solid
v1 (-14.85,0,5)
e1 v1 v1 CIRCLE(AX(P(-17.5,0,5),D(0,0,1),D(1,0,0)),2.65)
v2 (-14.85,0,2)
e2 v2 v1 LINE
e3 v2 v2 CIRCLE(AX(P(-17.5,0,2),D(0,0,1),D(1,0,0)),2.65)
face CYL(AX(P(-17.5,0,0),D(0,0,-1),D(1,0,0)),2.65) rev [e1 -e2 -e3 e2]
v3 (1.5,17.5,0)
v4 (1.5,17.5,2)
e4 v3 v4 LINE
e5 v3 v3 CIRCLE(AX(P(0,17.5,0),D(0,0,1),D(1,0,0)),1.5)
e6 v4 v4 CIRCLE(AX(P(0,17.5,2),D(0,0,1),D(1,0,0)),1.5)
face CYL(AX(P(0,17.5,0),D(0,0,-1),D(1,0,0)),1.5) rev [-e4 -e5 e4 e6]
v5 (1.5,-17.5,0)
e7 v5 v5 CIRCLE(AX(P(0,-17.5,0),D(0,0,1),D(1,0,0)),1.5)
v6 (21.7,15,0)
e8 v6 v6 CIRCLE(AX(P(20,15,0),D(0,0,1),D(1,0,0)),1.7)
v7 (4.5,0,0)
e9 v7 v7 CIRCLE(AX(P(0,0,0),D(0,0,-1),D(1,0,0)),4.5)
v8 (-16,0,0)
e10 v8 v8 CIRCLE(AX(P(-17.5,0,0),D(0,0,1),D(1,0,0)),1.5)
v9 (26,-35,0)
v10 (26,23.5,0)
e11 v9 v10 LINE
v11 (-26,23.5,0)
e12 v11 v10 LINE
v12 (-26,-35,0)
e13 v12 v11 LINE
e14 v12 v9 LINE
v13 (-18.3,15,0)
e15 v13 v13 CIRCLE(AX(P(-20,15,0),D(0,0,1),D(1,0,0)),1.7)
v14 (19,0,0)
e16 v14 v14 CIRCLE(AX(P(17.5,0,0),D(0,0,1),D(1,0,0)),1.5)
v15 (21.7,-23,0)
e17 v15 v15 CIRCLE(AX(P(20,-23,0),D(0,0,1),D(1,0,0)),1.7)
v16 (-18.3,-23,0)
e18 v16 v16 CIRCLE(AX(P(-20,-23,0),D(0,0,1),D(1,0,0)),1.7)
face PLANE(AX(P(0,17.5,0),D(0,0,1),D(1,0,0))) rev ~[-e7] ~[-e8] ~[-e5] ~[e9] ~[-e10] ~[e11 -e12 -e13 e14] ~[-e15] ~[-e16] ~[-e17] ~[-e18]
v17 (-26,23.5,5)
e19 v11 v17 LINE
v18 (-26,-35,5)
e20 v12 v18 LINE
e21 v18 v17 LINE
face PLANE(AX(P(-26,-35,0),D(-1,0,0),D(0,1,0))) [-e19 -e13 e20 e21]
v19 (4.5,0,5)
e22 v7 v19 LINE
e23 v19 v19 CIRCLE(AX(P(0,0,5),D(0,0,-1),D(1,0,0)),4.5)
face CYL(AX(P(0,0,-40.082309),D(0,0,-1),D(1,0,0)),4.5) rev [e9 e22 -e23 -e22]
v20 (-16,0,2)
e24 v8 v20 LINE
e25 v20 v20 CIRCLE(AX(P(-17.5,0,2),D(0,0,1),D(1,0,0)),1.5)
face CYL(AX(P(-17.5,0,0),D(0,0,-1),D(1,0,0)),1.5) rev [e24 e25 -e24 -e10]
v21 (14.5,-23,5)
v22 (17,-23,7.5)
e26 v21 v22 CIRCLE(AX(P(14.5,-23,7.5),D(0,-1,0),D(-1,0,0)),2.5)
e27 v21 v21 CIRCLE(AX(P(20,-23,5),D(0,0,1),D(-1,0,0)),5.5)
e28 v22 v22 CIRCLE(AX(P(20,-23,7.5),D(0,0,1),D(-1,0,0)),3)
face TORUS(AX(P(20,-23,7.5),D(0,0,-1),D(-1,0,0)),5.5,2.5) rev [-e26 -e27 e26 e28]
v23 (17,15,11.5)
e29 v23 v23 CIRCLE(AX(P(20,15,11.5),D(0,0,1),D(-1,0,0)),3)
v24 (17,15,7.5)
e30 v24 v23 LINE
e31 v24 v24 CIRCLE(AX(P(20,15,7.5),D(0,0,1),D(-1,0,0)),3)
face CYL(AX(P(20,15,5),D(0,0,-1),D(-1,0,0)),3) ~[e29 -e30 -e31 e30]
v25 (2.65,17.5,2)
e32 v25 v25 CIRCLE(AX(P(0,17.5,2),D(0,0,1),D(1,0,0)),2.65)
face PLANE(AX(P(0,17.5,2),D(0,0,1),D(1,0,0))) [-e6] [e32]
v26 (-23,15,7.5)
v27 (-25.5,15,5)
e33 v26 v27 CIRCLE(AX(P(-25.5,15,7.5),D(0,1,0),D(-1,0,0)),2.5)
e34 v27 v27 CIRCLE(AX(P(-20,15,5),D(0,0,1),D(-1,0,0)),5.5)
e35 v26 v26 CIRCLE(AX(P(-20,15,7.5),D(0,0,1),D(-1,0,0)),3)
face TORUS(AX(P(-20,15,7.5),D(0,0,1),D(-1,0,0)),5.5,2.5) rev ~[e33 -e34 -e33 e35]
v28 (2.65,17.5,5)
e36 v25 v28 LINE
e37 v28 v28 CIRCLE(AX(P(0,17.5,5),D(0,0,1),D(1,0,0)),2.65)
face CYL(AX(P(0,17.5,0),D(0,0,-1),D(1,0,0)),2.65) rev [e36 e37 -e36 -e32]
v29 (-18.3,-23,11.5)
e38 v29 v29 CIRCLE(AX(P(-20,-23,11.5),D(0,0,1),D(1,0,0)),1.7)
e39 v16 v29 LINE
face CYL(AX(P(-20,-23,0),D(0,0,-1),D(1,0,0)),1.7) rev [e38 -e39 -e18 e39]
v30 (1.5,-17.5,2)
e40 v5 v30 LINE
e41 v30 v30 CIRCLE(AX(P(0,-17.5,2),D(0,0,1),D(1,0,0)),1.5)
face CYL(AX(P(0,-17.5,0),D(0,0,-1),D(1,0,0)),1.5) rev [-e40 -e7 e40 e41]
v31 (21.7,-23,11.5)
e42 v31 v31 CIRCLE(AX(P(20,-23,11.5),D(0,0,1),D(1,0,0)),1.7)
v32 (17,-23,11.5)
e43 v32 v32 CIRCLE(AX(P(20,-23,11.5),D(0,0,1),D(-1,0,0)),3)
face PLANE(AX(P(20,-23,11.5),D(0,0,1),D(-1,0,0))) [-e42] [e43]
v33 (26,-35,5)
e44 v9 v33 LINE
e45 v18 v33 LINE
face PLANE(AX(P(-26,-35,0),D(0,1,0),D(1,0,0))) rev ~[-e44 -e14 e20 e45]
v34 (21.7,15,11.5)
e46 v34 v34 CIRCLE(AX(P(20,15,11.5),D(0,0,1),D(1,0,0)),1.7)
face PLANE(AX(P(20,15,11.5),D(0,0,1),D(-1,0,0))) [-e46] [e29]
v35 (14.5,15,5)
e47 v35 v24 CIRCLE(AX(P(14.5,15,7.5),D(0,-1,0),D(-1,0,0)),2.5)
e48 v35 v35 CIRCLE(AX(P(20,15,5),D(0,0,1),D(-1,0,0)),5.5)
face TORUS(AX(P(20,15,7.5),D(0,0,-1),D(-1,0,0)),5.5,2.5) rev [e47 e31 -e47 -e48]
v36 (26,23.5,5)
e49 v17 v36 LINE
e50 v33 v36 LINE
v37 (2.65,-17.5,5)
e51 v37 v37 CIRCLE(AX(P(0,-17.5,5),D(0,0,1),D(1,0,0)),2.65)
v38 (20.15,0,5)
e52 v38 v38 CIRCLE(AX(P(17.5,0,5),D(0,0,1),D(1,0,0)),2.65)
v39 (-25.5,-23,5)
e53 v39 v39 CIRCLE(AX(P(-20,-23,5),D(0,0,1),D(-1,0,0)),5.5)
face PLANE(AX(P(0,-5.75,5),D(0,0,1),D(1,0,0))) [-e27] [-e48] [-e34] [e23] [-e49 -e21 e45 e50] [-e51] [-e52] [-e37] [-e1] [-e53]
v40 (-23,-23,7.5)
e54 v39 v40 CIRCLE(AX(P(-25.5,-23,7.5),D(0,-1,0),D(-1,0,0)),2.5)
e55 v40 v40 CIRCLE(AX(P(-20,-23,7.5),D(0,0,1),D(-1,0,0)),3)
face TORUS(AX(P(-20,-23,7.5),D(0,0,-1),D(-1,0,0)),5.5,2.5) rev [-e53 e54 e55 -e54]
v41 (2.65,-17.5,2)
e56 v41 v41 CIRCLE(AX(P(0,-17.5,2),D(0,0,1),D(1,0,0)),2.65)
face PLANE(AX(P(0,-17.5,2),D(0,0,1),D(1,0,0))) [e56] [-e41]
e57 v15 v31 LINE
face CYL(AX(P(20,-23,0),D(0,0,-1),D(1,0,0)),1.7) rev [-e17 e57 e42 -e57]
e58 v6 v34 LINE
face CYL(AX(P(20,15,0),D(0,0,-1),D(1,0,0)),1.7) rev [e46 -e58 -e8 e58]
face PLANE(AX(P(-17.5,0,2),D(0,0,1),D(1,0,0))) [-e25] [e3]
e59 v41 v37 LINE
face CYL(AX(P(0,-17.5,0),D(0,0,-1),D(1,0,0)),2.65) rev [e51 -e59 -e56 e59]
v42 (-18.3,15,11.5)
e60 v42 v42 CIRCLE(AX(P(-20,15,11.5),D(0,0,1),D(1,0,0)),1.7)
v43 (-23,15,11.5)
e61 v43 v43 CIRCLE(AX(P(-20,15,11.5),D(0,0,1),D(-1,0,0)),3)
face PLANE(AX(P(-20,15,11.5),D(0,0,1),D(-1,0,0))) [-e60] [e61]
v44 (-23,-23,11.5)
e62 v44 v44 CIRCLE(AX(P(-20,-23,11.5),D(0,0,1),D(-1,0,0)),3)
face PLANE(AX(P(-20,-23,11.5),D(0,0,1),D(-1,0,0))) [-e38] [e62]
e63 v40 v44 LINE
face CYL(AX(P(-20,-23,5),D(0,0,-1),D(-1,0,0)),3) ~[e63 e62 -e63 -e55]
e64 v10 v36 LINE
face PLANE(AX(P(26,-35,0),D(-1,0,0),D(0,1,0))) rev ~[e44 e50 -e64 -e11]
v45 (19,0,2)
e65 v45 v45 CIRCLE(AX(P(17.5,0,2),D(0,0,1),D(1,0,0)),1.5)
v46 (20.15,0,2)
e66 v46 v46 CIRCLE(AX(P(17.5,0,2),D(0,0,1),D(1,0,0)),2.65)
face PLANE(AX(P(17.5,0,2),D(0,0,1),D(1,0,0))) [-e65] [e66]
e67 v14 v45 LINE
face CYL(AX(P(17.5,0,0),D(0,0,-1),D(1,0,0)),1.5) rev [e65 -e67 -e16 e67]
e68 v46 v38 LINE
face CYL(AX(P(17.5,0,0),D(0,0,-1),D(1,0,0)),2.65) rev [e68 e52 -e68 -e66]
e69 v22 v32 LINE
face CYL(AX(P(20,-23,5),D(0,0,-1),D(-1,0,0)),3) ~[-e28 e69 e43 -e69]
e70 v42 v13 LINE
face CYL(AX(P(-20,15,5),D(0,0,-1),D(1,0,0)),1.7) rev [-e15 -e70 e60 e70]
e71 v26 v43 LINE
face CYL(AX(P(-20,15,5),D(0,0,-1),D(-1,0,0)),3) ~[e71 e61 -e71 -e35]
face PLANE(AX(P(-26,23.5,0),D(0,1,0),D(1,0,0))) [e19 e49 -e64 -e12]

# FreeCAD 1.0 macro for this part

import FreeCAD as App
import Part
import Sketcher
Q = App.Units.Quantity


def edges_at(feature, points):
    """Names of the edges that pass closest to the given points."""
    edges = feature.Shape.Edges
    near = lambda p: min(range(len(edges)), key=lambda i: edges[i].distToShape(Part.Vertex(*p))[0])
    return sorted({f"Edge{near(p) + 1}" for p in points})


def add_polygon(sketch, points):
    """Adds a closed chain of lines whose ends are joined by coincident constraints."""
    first, n = sketch.GeometryCount, len(points)
    for a, b in zip(points, points[1:] + points[:1]):
        sketch.addGeometry(Part.LineSegment(App.Vector(*a, 0), App.Vector(*b, 0)), False)
    for i in range(n):
        sketch.addConstraint(Sketcher.Constraint("Coincident", first + i, 2, first + (i + 1) % n, 1))

doc = App.newDocument("Part")
params = doc.addObject("Spreadsheet::Sheet", "Params")
for row, (alias, value) in enumerate([
    ("sketch1_diameter", "3.4 mm"),
    ("sketch1_diameter2", "5.3 mm"),
    ("sketch1_width", "52 mm"),
    ("sketch1_height", "58.5 mm"),
    ("pad1_length", "5 mm"),
    ("sketch2_diameter", "3 mm"),
    ("sketch2_diameter2", "5.3 mm"),
    ("pad2_length", "2 mm"),
    ("sketch3_diameter", "6 mm"),
    ("sketch3_diameter2", "3.4 mm"),
    ("pad3_length", "6.5 mm"),
    ("sketch4_diameter", "9 mm"),
    ("fillet_radius", "2.5 mm"),
], start=1):
    params.set(f"A{row}", alias)
    params.set(f"B{row}", "=" + value)
    params.setAlias(f"B{row}", alias)

body = doc.addObject("PartDesign::Body", "Body")

sketch1 = doc.addObject("Sketcher::SketchObject", "Sketch")
body.addObject(sketch1)
sketch1.AttachmentSupport = (doc.XY_Plane, [""])
sketch1.MapMode = "FlatFace"
add_polygon(sketch1, [(-26, 23.5), (-26, -35), (26, -35), (26, 23.5)])
sketch1.addGeometry(Part.Circle(App.Vector(-20, -23, 0), App.Vector(0, 0, 1), 1.7), False)
sketch1.addGeometry(Part.Circle(App.Vector(0, -17.5, 0), App.Vector(0, 0, 1), 2.6), False)
sketch1.addGeometry(Part.Circle(App.Vector(20, -23, 0), App.Vector(0, 0, 1), 1.7), False)
sketch1.addGeometry(Part.Circle(App.Vector(-17.5, 0, 0), App.Vector(0, 0, 1), 2.6), False)
sketch1.addGeometry(Part.Circle(App.Vector(-20, 15, 0), App.Vector(0, 0, 1), 1.7), False)
sketch1.addGeometry(Part.Circle(App.Vector(17.5, 0, 0), App.Vector(0, 0, 1), 2.6), False)
sketch1.addGeometry(Part.Circle(App.Vector(0, 17.5, 0), App.Vector(0, 0, 1), 2.6), False)
sketch1.addGeometry(Part.Circle(App.Vector(20, 15, 0), App.Vector(0, 0, 1), 1.7), False)
sketch1.addConstraint(Sketcher.Constraint("Vertical", 0))
sketch1.addConstraint(Sketcher.Constraint("Horizontal", 1))
sketch1.addConstraint(Sketcher.Constraint("Vertical", 2))
sketch1.addConstraint(Sketcher.Constraint("Horizontal", 3))
sketch1.addConstraint(Sketcher.Constraint("Equal", 4, 6))
sketch1.addConstraint(Sketcher.Constraint("Equal", 5, 7))
sketch1.addConstraint(Sketcher.Constraint("Equal", 6, 8))
sketch1.addConstraint(Sketcher.Constraint("Equal", 7, 9))
sketch1.addConstraint(Sketcher.Constraint("Equal", 9, 10))
sketch1.addConstraint(Sketcher.Constraint("Equal", 8, 11))
sketch1.addConstraint(Sketcher.Constraint("Symmetric", 7, 3, 9, 3, -1, 1))
sketch1.addConstraint(Sketcher.Constraint("Symmetric", 5, 3, 10, 3, -1, 1))
sketch1.addConstraint(Sketcher.Constraint("Symmetric", 4, 3, 6, 3, -2))
sketch1.addConstraint(Sketcher.Constraint("Symmetric", 8, 3, 11, 3, -2))
sketch1.addConstraint(Sketcher.Constraint("PointOnObject", 5, 3, -2))
sketch1.addConstraint(Sketcher.Constraint("PointOnObject", 7, 3, -1))
sketch1.addConstraint(Sketcher.Constraint("Vertical", 4, 3, 8, 3))
sketch1.addConstraint(Sketcher.Constraint("Diameter", 4, Q("3.4 mm")))
sketch1.addConstraint(Sketcher.Constraint("Diameter", 5, Q("5.3 mm")))
sketch1.addConstraint(Sketcher.Constraint("DistanceX", 1, 1, 1, 2, Q("52 mm")))
sketch1.addConstraint(Sketcher.Constraint("DistanceY", 0, 2, 0, 1, Q("58.5 mm")))
sketch1.addConstraint(Sketcher.Constraint("DistanceX", 4, 3, -1, 1, Q("20 mm")))
sketch1.addConstraint(Sketcher.Constraint("DistanceY", 4, 3, -1, 1, Q("23 mm")))
sketch1.addConstraint(Sketcher.Constraint("DistanceY", -1, 1, 8, 3, Q("15 mm")))
sketch1.addConstraint(Sketcher.Constraint("DistanceX", 0, 2, -1, 1, Q("26 mm")))
sketch1.addConstraint(Sketcher.Constraint("DistanceY", 0, 2, -1, 1, Q("35 mm")))
sketch1.addConstraint(Sketcher.Constraint("DistanceX", 7, 3, 9, 3, Q("35 mm")))
sketch1.addConstraint(Sketcher.Constraint("DistanceY", 5, 3, 10, 3, Q("35 mm")))
sketch1.setExpression("Constraints[21]", "Params.sketch1_diameter")
sketch1.setExpression("Constraints[22]", "Params.sketch1_diameter2")
sketch1.setExpression("Constraints[23]", "Params.sketch1_width")
sketch1.setExpression("Constraints[24]", "Params.sketch1_height")
pad1 = doc.addObject("PartDesign::Pad", "Pad")
body.addObject(pad1)
pad1.Profile = sketch1
pad1.setExpression("Length", "Params.pad1_length")

sketch2 = doc.addObject("Sketcher::SketchObject", "Sketch001")
body.addObject(sketch2)
sketch2.AttachmentSupport = (doc.XY_Plane, [""])
sketch2.MapMode = "FlatFace"
sketch2.addGeometry(Part.Circle(App.Vector(0, 17.5, 0), App.Vector(0, 0, 1), 2.6), False)
sketch2.addGeometry(Part.Circle(App.Vector(0, 17.5, 0), App.Vector(0, 0, 1), 1.5), False)
sketch2.addGeometry(Part.Circle(App.Vector(-17.5, 0, 0), App.Vector(0, 0, 1), 2.6), False)
sketch2.addGeometry(Part.Circle(App.Vector(-17.5, 0, 0), App.Vector(0, 0, 1), 1.5), False)
sketch2.addGeometry(Part.Circle(App.Vector(17.5, 0, 0), App.Vector(0, 0, 1), 2.6), False)
sketch2.addGeometry(Part.Circle(App.Vector(17.5, 0, 0), App.Vector(0, 0, 1), 1.5), False)
sketch2.addGeometry(Part.Circle(App.Vector(0, -17.5, 0), App.Vector(0, 0, 1), 2.6), False)
sketch2.addGeometry(Part.Circle(App.Vector(0, -17.5, 0), App.Vector(0, 0, 1), 1.5), False)
sketch2.addConstraint(Sketcher.Constraint("Coincident", 1, 3, 0, 3))
sketch2.addConstraint(Sketcher.Constraint("Coincident", 3, 3, 2, 3))
sketch2.addConstraint(Sketcher.Constraint("Coincident", 5, 3, 4, 3))
sketch2.addConstraint(Sketcher.Constraint("Coincident", 7, 3, 6, 3))
sketch2.addConstraint(Sketcher.Constraint("Equal", 0, 2))
sketch2.addConstraint(Sketcher.Constraint("Equal", 1, 3))
sketch2.addConstraint(Sketcher.Constraint("Equal", 2, 4))
sketch2.addConstraint(Sketcher.Constraint("Equal", 3, 5))
sketch2.addConstraint(Sketcher.Constraint("Equal", 4, 6))
sketch2.addConstraint(Sketcher.Constraint("Equal", 5, 7))
sketch2.addConstraint(Sketcher.Constraint("Symmetric", 2, 3, 4, 3, -1, 1))
sketch2.addConstraint(Sketcher.Constraint("Symmetric", 0, 3, 6, 3, -1, 1))
sketch2.addConstraint(Sketcher.Constraint("PointOnObject", 0, 3, -2))
sketch2.addConstraint(Sketcher.Constraint("PointOnObject", 2, 3, -1))
sketch2.addConstraint(Sketcher.Constraint("Diameter", 1, Q("3 mm")))
sketch2.addConstraint(Sketcher.Constraint("Diameter", 0, Q("5.3 mm")))
sketch2.addConstraint(Sketcher.Constraint("DistanceX", 2, 3, 4, 3, Q("35 mm")))
sketch2.addConstraint(Sketcher.Constraint("DistanceY", 6, 3, 0, 3, Q("35 mm")))
sketch2.setExpression("Constraints[14]", "Params.sketch2_diameter")
sketch2.setExpression("Constraints[15]", "Params.sketch2_diameter2")
pad2 = doc.addObject("PartDesign::Pad", "Pad001")
body.addObject(pad2)
pad2.Profile = sketch2
pad2.setExpression("Length", "Params.pad2_length")

sketch3 = doc.addObject("Sketcher::SketchObject", "Sketch002")
body.addObject(sketch3)
sketch3.AttachmentSupport = (doc.XY_Plane, [""])
sketch3.MapMode = "FlatFace"
sketch3.AttachmentOffset = App.Placement(App.Vector(0, 0, 5), App.Rotation())
sketch3.addGeometry(Part.Circle(App.Vector(-20, 15, 0), App.Vector(0, 0, 1), 3), False)
sketch3.addGeometry(Part.Circle(App.Vector(-20, 15, 0), App.Vector(0, 0, 1), 1.7), False)
sketch3.addGeometry(Part.Circle(App.Vector(20, 15, 0), App.Vector(0, 0, 1), 3), False)
sketch3.addGeometry(Part.Circle(App.Vector(20, 15, 0), App.Vector(0, 0, 1), 1.7), False)
sketch3.addGeometry(Part.Circle(App.Vector(-20, -23, 0), App.Vector(0, 0, 1), 3), False)
sketch3.addGeometry(Part.Circle(App.Vector(-20, -23, 0), App.Vector(0, 0, 1), 1.7), False)
sketch3.addGeometry(Part.Circle(App.Vector(20, -23, 0), App.Vector(0, 0, 1), 3), False)
sketch3.addGeometry(Part.Circle(App.Vector(20, -23, 0), App.Vector(0, 0, 1), 1.7), False)
sketch3.addConstraint(Sketcher.Constraint("Coincident", 1, 3, 0, 3))
sketch3.addConstraint(Sketcher.Constraint("Coincident", 3, 3, 2, 3))
sketch3.addConstraint(Sketcher.Constraint("Coincident", 5, 3, 4, 3))
sketch3.addConstraint(Sketcher.Constraint("Coincident", 7, 3, 6, 3))
sketch3.addConstraint(Sketcher.Constraint("Equal", 0, 2))
sketch3.addConstraint(Sketcher.Constraint("Equal", 1, 3))
sketch3.addConstraint(Sketcher.Constraint("Equal", 2, 4))
sketch3.addConstraint(Sketcher.Constraint("Equal", 3, 5))
sketch3.addConstraint(Sketcher.Constraint("Equal", 4, 6))
sketch3.addConstraint(Sketcher.Constraint("Equal", 5, 7))
sketch3.addConstraint(Sketcher.Constraint("Symmetric", 0, 3, 2, 3, -2))
sketch3.addConstraint(Sketcher.Constraint("Symmetric", 4, 3, 6, 3, -2))
sketch3.addConstraint(Sketcher.Constraint("Vertical", 1, 3, 4, 3))
sketch3.addConstraint(Sketcher.Constraint("Diameter", 0, Q("6 mm")))
sketch3.addConstraint(Sketcher.Constraint("Diameter", 1, Q("3.4 mm")))
sketch3.addConstraint(Sketcher.Constraint("DistanceX", 0, 3, -1, 1, Q("20 mm")))
sketch3.addConstraint(Sketcher.Constraint("DistanceY", -1, 1, 0, 3, Q("15 mm")))
sketch3.addConstraint(Sketcher.Constraint("DistanceY", 4, 3, -1, 1, Q("23 mm")))
sketch3.setExpression("Constraints[13]", "Params.sketch3_diameter")
sketch3.setExpression("Constraints[14]", "Params.sketch3_diameter2")
pad3 = doc.addObject("PartDesign::Pad", "Pad002")
body.addObject(pad3)
pad3.Profile = sketch3
pad3.setExpression("Length", "Params.pad3_length")

sketch4 = doc.addObject("Sketcher::SketchObject", "Sketch003")
body.addObject(sketch4)
sketch4.AttachmentSupport = (doc.XY_Plane, [""])
sketch4.MapMode = "FlatFace"
sketch4.AttachmentOffset = App.Placement(App.Vector(0, 0, 5), App.Rotation())
sketch4.addGeometry(Part.Circle(App.Vector(0, 0, 0), App.Vector(0, 0, 1), 4.5), False)
sketch4.addConstraint(Sketcher.Constraint("Coincident", 0, 3, -1, 1))
sketch4.addConstraint(Sketcher.Constraint("Diameter", 0, Q("9 mm")))
sketch4.setExpression("Constraints[1]", "Params.sketch4_diameter")
pocket1 = doc.addObject("PartDesign::Pocket", "Pocket")
body.addObject(pocket1)
pocket1.Profile = sketch4
pocket1.Type = "ThroughAll"
pocket1.Midplane = True
doc.recompute()

fillet = doc.addObject("PartDesign::Fillet", "Fillet")
body.addObject(fillet)
fillet.Base = (pocket1, edges_at(pocket1, [
    (-17, 15, 5),
    (23, 15, 5),
    (-17, -23, 5),
    (23, -23, 5),
]))
fillet.setExpression("Radius", "Params.fillet_radius")

doc.recompute()
